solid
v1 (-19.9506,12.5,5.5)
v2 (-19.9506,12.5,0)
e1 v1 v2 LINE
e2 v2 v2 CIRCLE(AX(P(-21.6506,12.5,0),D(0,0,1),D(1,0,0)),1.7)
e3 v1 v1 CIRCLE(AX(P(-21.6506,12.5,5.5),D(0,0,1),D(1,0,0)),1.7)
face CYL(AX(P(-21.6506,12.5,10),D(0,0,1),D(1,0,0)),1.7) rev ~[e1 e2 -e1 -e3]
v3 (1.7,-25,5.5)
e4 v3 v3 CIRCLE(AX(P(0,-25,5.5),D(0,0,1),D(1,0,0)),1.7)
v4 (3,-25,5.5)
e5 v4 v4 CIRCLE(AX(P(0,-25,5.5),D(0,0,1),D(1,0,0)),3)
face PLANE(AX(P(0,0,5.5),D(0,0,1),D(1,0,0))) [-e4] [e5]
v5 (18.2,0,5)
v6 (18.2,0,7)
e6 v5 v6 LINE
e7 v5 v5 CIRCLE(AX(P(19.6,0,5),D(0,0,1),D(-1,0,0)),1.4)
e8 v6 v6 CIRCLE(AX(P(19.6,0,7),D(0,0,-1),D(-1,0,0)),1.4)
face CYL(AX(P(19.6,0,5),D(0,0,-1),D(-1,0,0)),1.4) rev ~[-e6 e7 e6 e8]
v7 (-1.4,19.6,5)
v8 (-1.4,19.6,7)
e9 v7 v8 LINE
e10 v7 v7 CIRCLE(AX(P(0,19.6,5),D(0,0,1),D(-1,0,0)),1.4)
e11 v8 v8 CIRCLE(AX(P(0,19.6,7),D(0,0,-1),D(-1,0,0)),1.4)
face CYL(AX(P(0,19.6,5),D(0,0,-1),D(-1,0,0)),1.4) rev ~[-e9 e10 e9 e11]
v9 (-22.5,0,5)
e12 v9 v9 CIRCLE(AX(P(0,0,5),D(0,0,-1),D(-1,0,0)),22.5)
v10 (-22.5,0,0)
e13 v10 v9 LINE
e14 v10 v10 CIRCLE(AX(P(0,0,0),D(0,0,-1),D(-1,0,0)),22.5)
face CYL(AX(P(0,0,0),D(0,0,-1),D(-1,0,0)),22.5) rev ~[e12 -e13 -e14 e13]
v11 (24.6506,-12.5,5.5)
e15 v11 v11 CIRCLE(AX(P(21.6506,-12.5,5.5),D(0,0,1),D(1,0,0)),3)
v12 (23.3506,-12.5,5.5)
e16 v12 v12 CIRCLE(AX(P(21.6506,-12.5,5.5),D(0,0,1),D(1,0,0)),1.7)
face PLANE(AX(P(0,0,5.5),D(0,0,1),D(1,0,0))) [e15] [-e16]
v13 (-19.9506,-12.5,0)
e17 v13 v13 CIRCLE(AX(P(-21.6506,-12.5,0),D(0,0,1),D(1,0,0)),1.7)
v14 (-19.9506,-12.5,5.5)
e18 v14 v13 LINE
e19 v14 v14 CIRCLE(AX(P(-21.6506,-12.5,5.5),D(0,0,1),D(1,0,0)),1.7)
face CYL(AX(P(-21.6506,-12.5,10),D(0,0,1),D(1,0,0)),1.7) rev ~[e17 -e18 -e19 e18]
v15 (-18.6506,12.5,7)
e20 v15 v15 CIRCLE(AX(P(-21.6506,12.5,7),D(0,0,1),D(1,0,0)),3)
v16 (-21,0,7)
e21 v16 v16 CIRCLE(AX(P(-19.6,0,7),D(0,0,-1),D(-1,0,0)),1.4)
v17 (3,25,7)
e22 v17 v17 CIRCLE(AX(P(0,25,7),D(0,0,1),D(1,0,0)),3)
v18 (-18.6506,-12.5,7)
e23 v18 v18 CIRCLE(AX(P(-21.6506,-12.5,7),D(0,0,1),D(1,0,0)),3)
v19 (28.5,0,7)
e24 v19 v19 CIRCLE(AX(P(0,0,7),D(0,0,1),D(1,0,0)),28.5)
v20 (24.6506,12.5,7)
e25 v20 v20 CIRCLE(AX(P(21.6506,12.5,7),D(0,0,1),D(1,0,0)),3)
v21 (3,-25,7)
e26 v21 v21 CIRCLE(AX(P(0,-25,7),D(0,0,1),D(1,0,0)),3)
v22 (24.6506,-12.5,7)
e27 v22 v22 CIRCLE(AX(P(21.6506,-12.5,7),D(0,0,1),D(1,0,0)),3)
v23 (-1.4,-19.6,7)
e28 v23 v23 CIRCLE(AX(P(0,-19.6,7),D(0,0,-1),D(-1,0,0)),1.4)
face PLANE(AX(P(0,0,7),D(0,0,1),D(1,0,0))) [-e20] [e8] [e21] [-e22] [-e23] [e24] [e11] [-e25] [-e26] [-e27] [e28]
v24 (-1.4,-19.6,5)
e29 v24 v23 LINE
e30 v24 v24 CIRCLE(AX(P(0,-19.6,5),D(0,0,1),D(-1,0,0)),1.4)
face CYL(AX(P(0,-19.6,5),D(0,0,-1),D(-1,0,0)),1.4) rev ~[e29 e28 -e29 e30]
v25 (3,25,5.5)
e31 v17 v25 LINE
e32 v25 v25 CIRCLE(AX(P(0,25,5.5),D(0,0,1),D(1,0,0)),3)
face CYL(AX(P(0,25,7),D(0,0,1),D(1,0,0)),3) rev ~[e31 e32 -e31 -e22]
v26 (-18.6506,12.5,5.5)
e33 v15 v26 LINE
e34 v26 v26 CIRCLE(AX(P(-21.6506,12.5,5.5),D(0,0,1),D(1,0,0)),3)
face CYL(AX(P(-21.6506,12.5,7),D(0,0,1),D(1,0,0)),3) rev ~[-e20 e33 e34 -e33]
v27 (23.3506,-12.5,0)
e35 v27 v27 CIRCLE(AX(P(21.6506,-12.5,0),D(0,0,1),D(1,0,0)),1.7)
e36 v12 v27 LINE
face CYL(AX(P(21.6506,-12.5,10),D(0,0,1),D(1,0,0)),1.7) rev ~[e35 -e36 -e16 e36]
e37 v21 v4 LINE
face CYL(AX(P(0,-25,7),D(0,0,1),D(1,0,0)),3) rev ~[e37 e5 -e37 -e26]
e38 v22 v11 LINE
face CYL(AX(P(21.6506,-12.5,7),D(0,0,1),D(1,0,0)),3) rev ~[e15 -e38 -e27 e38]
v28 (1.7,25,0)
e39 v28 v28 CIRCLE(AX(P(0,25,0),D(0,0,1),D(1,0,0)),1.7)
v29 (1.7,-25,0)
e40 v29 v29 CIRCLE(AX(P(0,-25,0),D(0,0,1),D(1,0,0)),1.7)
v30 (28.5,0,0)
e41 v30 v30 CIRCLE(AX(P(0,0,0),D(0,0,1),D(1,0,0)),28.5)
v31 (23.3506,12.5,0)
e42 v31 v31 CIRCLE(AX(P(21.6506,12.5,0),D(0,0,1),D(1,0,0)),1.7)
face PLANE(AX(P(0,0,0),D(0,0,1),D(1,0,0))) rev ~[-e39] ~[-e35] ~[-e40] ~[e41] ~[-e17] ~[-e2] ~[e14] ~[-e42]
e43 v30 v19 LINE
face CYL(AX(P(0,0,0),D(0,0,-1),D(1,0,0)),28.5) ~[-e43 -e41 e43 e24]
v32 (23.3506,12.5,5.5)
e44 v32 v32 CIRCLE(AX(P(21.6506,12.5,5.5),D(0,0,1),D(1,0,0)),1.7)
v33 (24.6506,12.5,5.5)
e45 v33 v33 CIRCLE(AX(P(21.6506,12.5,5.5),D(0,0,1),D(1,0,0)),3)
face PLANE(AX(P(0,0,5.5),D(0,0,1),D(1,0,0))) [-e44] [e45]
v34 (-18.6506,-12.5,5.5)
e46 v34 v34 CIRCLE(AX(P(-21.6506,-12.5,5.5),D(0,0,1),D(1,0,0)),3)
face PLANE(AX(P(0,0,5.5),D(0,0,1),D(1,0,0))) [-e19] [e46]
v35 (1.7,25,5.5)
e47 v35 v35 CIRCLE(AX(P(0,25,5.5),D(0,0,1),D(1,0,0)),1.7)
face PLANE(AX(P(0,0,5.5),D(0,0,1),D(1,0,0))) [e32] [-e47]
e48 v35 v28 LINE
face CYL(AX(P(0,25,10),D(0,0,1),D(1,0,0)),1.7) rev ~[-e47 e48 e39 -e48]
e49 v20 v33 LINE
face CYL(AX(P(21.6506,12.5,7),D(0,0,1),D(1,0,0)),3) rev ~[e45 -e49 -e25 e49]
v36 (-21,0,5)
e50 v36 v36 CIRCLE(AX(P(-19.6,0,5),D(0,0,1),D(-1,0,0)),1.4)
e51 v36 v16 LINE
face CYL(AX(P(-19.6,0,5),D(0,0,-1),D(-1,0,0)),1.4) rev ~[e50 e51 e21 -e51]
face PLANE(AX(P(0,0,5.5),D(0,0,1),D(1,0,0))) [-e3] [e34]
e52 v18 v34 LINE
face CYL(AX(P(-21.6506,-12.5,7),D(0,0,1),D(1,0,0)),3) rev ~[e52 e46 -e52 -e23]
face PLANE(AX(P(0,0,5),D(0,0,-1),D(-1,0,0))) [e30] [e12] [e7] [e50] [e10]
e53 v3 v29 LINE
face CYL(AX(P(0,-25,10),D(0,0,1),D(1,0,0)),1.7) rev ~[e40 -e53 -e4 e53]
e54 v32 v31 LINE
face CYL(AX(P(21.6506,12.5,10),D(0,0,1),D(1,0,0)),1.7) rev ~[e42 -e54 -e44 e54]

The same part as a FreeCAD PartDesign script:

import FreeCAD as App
import Part
import Sketcher
from FreeCAD import Vector
Q = App.Units.Quantity

doc = App.newDocument("Part")
params = doc.addObject("Spreadsheet::Sheet", "Params")
for row, (alias, value) in enumerate([
    ("sketch1_diameter", "57 mm"),
    ("pad1_length", "10 mm"),
    ("sketch2_diameter", "45 mm"),
    ("pocket1_length", "5 mm"),
    ("sketch3_diameter", "2.8 mm"),
    ("pocket2_length", "5 mm"),
    ("sketch4_diameter", "3.4 mm"),
    ("pocket3_length", "10 mm"),
    ("sketch5_diameter", "57 mm"),
    ("pocket4_length", "3 mm"),
    ("sketch6_diameter", "6 mm"),
    ("pocket5_length", "1.5 mm"),
], start=1):
    params.set(f"A{row}", alias)
    params.set(f"B{row}", "=" + value)
    params.setAlias(f"B{row}", alias)

body = doc.addObject("PartDesign::Body", "Body")

sketch1 = doc.addObject("Sketcher::SketchObject", "Sketch")
body.addObject(sketch1)
sketch1.AttachmentSupport = (doc.XY_Plane, [""])
sketch1.MapMode = "FlatFace"
sketch1.addGeometry(Part.Circle(Vector(0, 0, 0), Vector(0, 0, 1), 28), False)
sketch1.addConstraint([
    Sketcher.Constraint("Coincident", 0, 3, -1, 1),
    Sketcher.Constraint("Diameter", 0, Q("57 mm")),
])
sketch1.setExpression("Constraints[1]", "Params.sketch1_diameter")
pad1 = doc.addObject("PartDesign::Pad", "Pad")
body.addObject(pad1)
pad1.Profile = sketch1
pad1.setExpression("Length", "Params.pad1_length")

sketch2 = doc.addObject("Sketcher::SketchObject", "Sketch001")
body.addObject(sketch2)
sketch2.AttachmentSupport = (doc.XY_Plane, [""])
sketch2.MapMode = "FlatFace"
sketch2.addGeometry(Part.Circle(Vector(0, 0, 0), Vector(0, 0, 1), 22), False)
sketch2.addConstraint([
    Sketcher.Constraint("Coincident", 0, 3, -1, 1),
    Sketcher.Constraint("Diameter", 0, Q("45 mm")),
])
sketch2.setExpression("Constraints[1]", "Params.sketch2_diameter")
pocket1 = doc.addObject("PartDesign::Pocket", "Pocket")
body.addObject(pocket1)
pocket1.Profile = sketch2
pocket1.setExpression("Length", "Params.pocket1_length")
pocket1.Reversed = True

sketch3 = doc.addObject("Sketcher::SketchObject", "Sketch002")
body.addObject(sketch3)
sketch3.AttachmentSupport = (doc.XY_Plane, [""])
sketch3.MapMode = "FlatFace"
sketch3.AttachmentOffset = App.Placement(Vector(0, 0, 5), App.Rotation())
sketch3.addGeometry([
    Part.Circle(Vector(-19.6, 0, 0), Vector(0, 0, 1), 1.4),
    Part.Circle(Vector(0, 19.6, 0), Vector(0, 0, 1), 1.4),
    Part.Circle(Vector(0, -19.6, 0), Vector(0, 0, 1), 1.4),
    Part.Circle(Vector(19.6, 0, 0), Vector(0, 0, 1), 1.4),
], False)
sketch3.addConstraint([
    Sketcher.Constraint("Equal", 0, 1),
    Sketcher.Constraint("Equal", 1, 2),
    Sketcher.Constraint("Equal", 2, 3),
    Sketcher.Constraint("Symmetric", 1, 3, 2, 3, -1, 1),
    Sketcher.Constraint("Symmetric", 0, 3, 3, 3, -1, 1),
    Sketcher.Constraint("PointOnObject", 0, 3, -1),
    Sketcher.Constraint("PointOnObject", 1, 3, -2),
    Sketcher.Constraint("Diameter", 0, Q("2.8 mm")),
    Sketcher.Constraint("DistanceY", 2, 3, 1, 3, Q("39.2 mm")),
    Sketcher.Constraint("DistanceX", 0, 3, 3, 3, Q("39.2 mm")),
])
sketch3.setExpression("Constraints[7]", "Params.sketch3_diameter")
pocket2 = doc.addObject("PartDesign::Pocket", "Pocket001")
body.addObject(pocket2)
pocket2.Profile = sketch3
pocket2.setExpression("Length", "Params.pocket2_length")
pocket2.Reversed = True

sketch4 = doc.addObject("Sketcher::SketchObject", "Sketch003")
body.addObject(sketch4)
sketch4.AttachmentSupport = (doc.XY_Plane, [""])
sketch4.MapMode = "FlatFace"
sketch4.AttachmentOffset = App.Placement(Vector(0, 0, 10), App.Rotation())
sketch4.addGeometry([
    Part.Circle(Vector(21.7, 12.5, 0), Vector(0, 0, 1), 1.7),
    Part.Circle(Vector(21.7, -12.5, 0), Vector(0, 0, 1), 1.7),
    Part.Circle(Vector(0, 25, 0), Vector(0, 0, 1), 1.7),
    Part.Circle(Vector(0, -25, 0), Vector(0, 0, 1), 1.7),
    Part.Circle(Vector(-21.7, 12.5, 0), Vector(0, 0, 1), 1.7),
    Part.Circle(Vector(-21.7, -12.5, 0), Vector(0, 0, 1), 1.7),
], False)
sketch4.addConstraint([
    Sketcher.Constraint("Equal", 0, 1),
    Sketcher.Constraint("Equal", 1, 2),
    Sketcher.Constraint("Equal", 2, 3),
    Sketcher.Constraint("Equal", 3, 4),
    Sketcher.Constraint("Equal", 4, 5),
    Sketcher.Constraint("Symmetric", 2, 3, 3, 3, -1, 1),
    Sketcher.Constraint("Symmetric", 1, 3, 4, 3, -1, 1),
    Sketcher.Constraint("Symmetric", 0, 3, 5, 3, -1, 1),
    Sketcher.Constraint("Symmetric", 0, 3, 4, 3, -2),
    Sketcher.Constraint("PointOnObject", 2, 3, -2),
    Sketcher.Constraint("Diameter", 0, Q("3.4 mm")),
    Sketcher.Constraint("DistanceY", 3, 3, 2, 3, Q("50 mm")),
    Sketcher.Constraint("DistanceY", 1, 3, 0, 3, Q("25 mm")),
    Sketcher.Constraint("DistanceX", -1, 1, 0, 3, Q("21.6506 mm")),
])
sketch4.setExpression("Constraints[10]", "Params.sketch4_diameter")
pocket3 = doc.addObject("PartDesign::Pocket", "Pocket002")
body.addObject(pocket3)
pocket3.Profile = sketch4
pocket3.setExpression("Length", "Params.pocket3_length")

sketch5 = doc.addObject("Sketcher::SketchObject", "Sketch004")
body.addObject(sketch5)
sketch5.AttachmentSupport = (doc.XY_Plane, [""])
sketch5.MapMode = "FlatFace"
sketch5.AttachmentOffset = App.Placement(Vector(0, 0, 10), App.Rotation())
sketch5.addGeometry(Part.Circle(Vector(0, 0, 0), Vector(0, 0, 1), 28), False)
sketch5.addConstraint([
    Sketcher.Constraint("Coincident", 0, 3, -1, 1),
    Sketcher.Constraint("Diameter", 0, Q("57 mm")),
])
sketch5.setExpression("Constraints[1]", "Params.sketch5_diameter")
pocket4 = doc.addObject("PartDesign::Pocket", "Pocket003")
body.addObject(pocket4)
pocket4.Profile = sketch5
pocket4.setExpression("Length", "Params.pocket4_length")

sketch6 = doc.addObject("Sketcher::SketchObject", "Sketch005")
body.addObject(sketch6)
sketch6.AttachmentSupport = (doc.XY_Plane, [""])
sketch6.MapMode = "FlatFace"
sketch6.AttachmentOffset = App.Placement(Vector(0, 0, 7), App.Rotation())
sketch6.addGeometry([
    Part.Circle(Vector(0, 25, 0), Vector(0, 0, 1), 3),
    Part.Circle(Vector(-21.7, 12.5, 0), Vector(0, 0, 1), 3),
    Part.Circle(Vector(-21.7, -12.5, 0), Vector(0, 0, 1), 3),
    Part.Circle(Vector(0, -25, 0), Vector(0, 0, 1), 3),
    Part.Circle(Vector(21.7, -12.5, 0), Vector(0, 0, 1), 3),
    Part.Circle(Vector(21.7, 12.5, 0), Vector(0, 0, 1), 3),
], False)
sketch6.addConstraint([
    Sketcher.Constraint("Equal", 0, 1),
    Sketcher.Constraint("Equal", 1, 2),
    Sketcher.Constraint("Equal", 2, 3),
    Sketcher.Constraint("Equal", 3, 4),
    Sketcher.Constraint("Equal", 4, 5),
    Sketcher.Constraint("Symmetric", 0, 3, 3, 3, -1, 1),
    Sketcher.Constraint("Symmetric", 1, 3, 4, 3, -1, 1),
    Sketcher.Constraint("Symmetric", 2, 3, 5, 3, -1, 1),
    Sketcher.Constraint("Symmetric", 2, 3, 4, 3, -2),
    Sketcher.Constraint("PointOnObject", 0, 3, -2),
    Sketcher.Constraint("Diameter", 0, Q("6 mm")),
    Sketcher.Constraint("DistanceY", -1, 1, 0, 3, Q("25 mm")),
    Sketcher.Constraint("DistanceY", 2, 3, 1, 3, Q("25 mm")),
    Sketcher.Constraint("DistanceX", 1, 3, -1, 1, Q("21.6506 mm")),
])
sketch6.setExpression("Constraints[10]", "Params.sketch6_diameter")
pocket5 = doc.addObject("PartDesign::Pocket", "Pocket004")
body.addObject(pocket5)
pocket5.Profile = sketch6
pocket5.setExpression("Length", "Params.pocket5_length")

doc.recompute()
